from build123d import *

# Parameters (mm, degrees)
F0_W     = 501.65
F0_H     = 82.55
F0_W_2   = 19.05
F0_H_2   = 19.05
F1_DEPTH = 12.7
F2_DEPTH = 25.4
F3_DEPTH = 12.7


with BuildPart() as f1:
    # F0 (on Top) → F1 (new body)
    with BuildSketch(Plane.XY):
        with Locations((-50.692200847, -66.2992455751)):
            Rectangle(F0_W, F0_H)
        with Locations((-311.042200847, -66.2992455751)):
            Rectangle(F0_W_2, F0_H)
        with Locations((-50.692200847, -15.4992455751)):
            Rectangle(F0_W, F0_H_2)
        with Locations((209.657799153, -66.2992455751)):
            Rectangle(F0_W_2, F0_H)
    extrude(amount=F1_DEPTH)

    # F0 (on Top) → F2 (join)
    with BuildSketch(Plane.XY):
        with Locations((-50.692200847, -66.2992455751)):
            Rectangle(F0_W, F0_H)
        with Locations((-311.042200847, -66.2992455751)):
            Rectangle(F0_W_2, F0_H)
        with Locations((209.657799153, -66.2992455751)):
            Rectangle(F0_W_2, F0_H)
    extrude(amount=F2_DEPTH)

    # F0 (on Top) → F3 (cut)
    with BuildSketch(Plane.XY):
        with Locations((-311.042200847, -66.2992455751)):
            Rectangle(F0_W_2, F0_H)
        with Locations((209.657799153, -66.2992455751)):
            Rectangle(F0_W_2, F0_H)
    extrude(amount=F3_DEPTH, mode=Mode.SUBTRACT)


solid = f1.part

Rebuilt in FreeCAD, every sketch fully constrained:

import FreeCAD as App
import Part
import Sketcher
from FreeCAD import Vector
Q = App.Units.Quantity

doc = App.newDocument("Part")
body = doc.addObject("PartDesign::Body", "Body")

sketch1 = body.newObject("Sketcher::SketchObject", "Sketch")
sketch1.AttachmentSupport = (doc.getObject("XY_Plane"), [""])
sketch1.MapMode = "FlatFace"
sketch1.addGeometry(Part.LineSegment(Vector(200, -25, 0), Vector(200, -6, 0)), False)
sketch1.addGeometry(Part.LineSegment(Vector(200, -6, 0), Vector(-302, -6, 0)), False)
sketch1.addGeometry(Part.LineSegment(Vector(-302, -6, 0), Vector(-302, -25, 0)), False)
sketch1.addGeometry(Part.LineSegment(Vector(-302, -25, 0), Vector(-321, -25, 0)), False)
sketch1.addGeometry(Part.LineSegment(Vector(-321, -25, 0), Vector(-321, -108, 0)), False)
sketch1.addGeometry(Part.LineSegment(Vector(-321, -108, 0), Vector(219, -108, 0)), False)
sketch1.addGeometry(Part.LineSegment(Vector(219, -108, 0), Vector(219, -25, 0)), False)
sketch1.addGeometry(Part.LineSegment(Vector(219, -25, 0), Vector(200, -25, 0)), False)
sketch1.addConstraint(Sketcher.Constraint("Coincident", 0, 2, 1, 1))
sketch1.addConstraint(Sketcher.Constraint("Coincident", 1, 2, 2, 1))
sketch1.addConstraint(Sketcher.Constraint("Coincident", 2, 2, 3, 1))
sketch1.addConstraint(Sketcher.Constraint("Coincident", 3, 2, 4, 1))
sketch1.addConstraint(Sketcher.Constraint("Coincident", 4, 2, 5, 1))
sketch1.addConstraint(Sketcher.Constraint("Coincident", 5, 2, 6, 1))
sketch1.addConstraint(Sketcher.Constraint("Coincident", 6, 2, 7, 1))
sketch1.addConstraint(Sketcher.Constraint("Coincident", 7, 2, 0, 1))
sketch1.addConstraint(Sketcher.Constraint("Vertical", 0))
sketch1.addConstraint(Sketcher.Constraint("Horizontal", 1))
sketch1.addConstraint(Sketcher.Constraint("Vertical", 2))
sketch1.addConstraint(Sketcher.Constraint("Horizontal", 3))
sketch1.addConstraint(Sketcher.Constraint("Vertical", 4))
sketch1.addConstraint(Sketcher.Constraint("Horizontal", 5))
sketch1.addConstraint(Sketcher.Constraint("Vertical", 6))
sketch1.addConstraint(Sketcher.Constraint("Horizontal", 7))
sketch1.addConstraint(Sketcher.Constraint("Horizontal", 3, 2, 6, 2))
sketch1.addConstraint(Sketcher.Constraint("Equal", 3, 7))
sketch1.addConstraint(Sketcher.Constraint("Equal", 7, 0))
sketch1.addConstraint(Sketcher.Constraint("DistanceY", 4, 2, 1, 2, Q("4 in")))
sketch1.addConstraint(Sketcher.Constraint("DistanceX", 1, 2, 1, 1, Q("19.75 in")))
sketch1.addConstraint(Sketcher.Constraint("DistanceX", 3, 2, 3, 1, Q("0.75 in")))
sketch1.addConstraint(Sketcher.Constraint("DistanceX", -1, 1, 0, 2, Q("200.132799 mm")))
sketch1.addConstraint(Sketcher.Constraint("DistanceY", 0, 2, -1, 1, Q("5.974246 mm")))
pad1 = body.newObject("PartDesign::Pad", "Pad")
pad1.Profile = sketch1
pad1.Length = Q("0.5 in")

sketch2 = body.newObject("Sketcher::SketchObject", "Sketch001")
sketch2.AttachmentSupport = (doc.getObject("XY_Plane"), [""])
sketch2.MapMode = "FlatFace"
sketch2.addGeometry(Part.LineSegment(Vector(-321, -25, 0), Vector(-321, -108, 0)), False)
sketch2.addGeometry(Part.LineSegment(Vector(-321, -108, 0), Vector(219, -108, 0)), False)
sketch2.addGeometry(Part.LineSegment(Vector(219, -108, 0), Vector(219, -25, 0)), False)
sketch2.addGeometry(Part.LineSegment(Vector(219, -25, 0), Vector(-321, -25, 0)), False)
sketch2.addConstraint(Sketcher.Constraint("Coincident", 0, 2, 1, 1))
sketch2.addConstraint(Sketcher.Constraint("Coincident", 1, 2, 2, 1))
sketch2.addConstraint(Sketcher.Constraint("Coincident", 2, 2, 3, 1))
sketch2.addConstraint(Sketcher.Constraint("Coincident", 3, 2, 0, 1))
sketch2.addConstraint(Sketcher.Constraint("Vertical", 0))
sketch2.addConstraint(Sketcher.Constraint("Horizontal", 1))
sketch2.addConstraint(Sketcher.Constraint("Vertical", 2))
sketch2.addConstraint(Sketcher.Constraint("Horizontal", 3))
sketch2.addConstraint(Sketcher.Constraint("DistanceX", 1, 1, 1, 2, Q("21.25 in")))
sketch2.addConstraint(Sketcher.Constraint("DistanceY", 0, 2, 0, 1, Q("3.25 in")))
sketch2.addConstraint(Sketcher.Constraint("DistanceX", 0, 2, -1, 1, Q("320.567201 mm")))
sketch2.addConstraint(Sketcher.Constraint("DistanceY", 0, 2, -1, 1, Q("107.574246 mm")))
pad2 = body.newObject("PartDesign::Pad", "Pad001")
pad2.Profile = sketch2
pad2.Length = Q("1 in")

sketch3 = body.newObject("Sketcher::SketchObject", "Sketch002")
sketch3.AttachmentSupport = (doc.getObject("XY_Plane"), [""])
sketch3.MapMode = "FlatFace"
sketch3.addGeometry(Part.LineSegment(Vector(-321, -25, 0), Vector(-321, -108, 0)), False)
sketch3.addGeometry(Part.LineSegment(Vector(-321, -108, 0), Vector(-302, -108, 0)), False)
sketch3.addGeometry(Part.LineSegment(Vector(-302, -108, 0), Vector(-302, -25, 0)), False)
sketch3.addGeometry(Part.LineSegment(Vector(-302, -25, 0), Vector(-321, -25, 0)), False)
sketch3.addGeometry(Part.LineSegment(Vector(200, -25, 0), Vector(200, -108, 0)), False)
sketch3.addGeometry(Part.LineSegment(Vector(200, -108, 0), Vector(219, -108, 0)), False)
sketch3.addGeometry(Part.LineSegment(Vector(219, -108, 0), Vector(219, -25, 0)), False)
sketch3.addGeometry(Part.LineSegment(Vector(219, -25, 0), Vector(200, -25, 0)), False)
sketch3.addConstraint(Sketcher.Constraint("Coincident", 0, 2, 1, 1))
sketch3.addConstraint(Sketcher.Constraint("Coincident", 1, 2, 2, 1))
sketch3.addConstraint(Sketcher.Constraint("Coincident", 2, 2, 3, 1))
sketch3.addConstraint(Sketcher.Constraint("Coincident", 3, 2, 0, 1))
sketch3.addConstraint(Sketcher.Constraint("Coincident", 4, 2, 5, 1))
sketch3.addConstraint(Sketcher.Constraint("Coincident", 5, 2, 6, 1))
sketch3.addConstraint(Sketcher.Constraint("Coincident", 6, 2, 7, 1))
sketch3.addConstraint(Sketcher.Constraint("Coincident", 7, 2, 4, 1))
sketch3.addConstraint(Sketcher.Constraint("Vertical", 0))
sketch3.addConstraint(Sketcher.Constraint("Horizontal", 1))
sketch3.addConstraint(Sketcher.Constraint("Vertical", 2))
sketch3.addConstraint(Sketcher.Constraint("Horizontal", 3))
sketch3.addConstraint(Sketcher.Constraint("Vertical", 4))
sketch3.addConstraint(Sketcher.Constraint("Horizontal", 5))
sketch3.addConstraint(Sketcher.Constraint("Vertical", 6))
sketch3.addConstraint(Sketcher.Constraint("Horizontal", 7))
sketch3.addConstraint(Sketcher.Constraint("Horizontal", 1, 2, 4, 2))
sketch3.addConstraint(Sketcher.Constraint("Horizontal", 3, 2, 6, 2))
sketch3.addConstraint(Sketcher.Constraint("Equal", 3, 5))
sketch3.addConstraint(Sketcher.Constraint("DistanceX", 1, 1, 1, 2, Q("0.75 in")))
sketch3.addConstraint(Sketcher.Constraint("DistanceY", 0, 2, 0, 1, Q("3.25 in")))
sketch3.addConstraint(Sketcher.Constraint("DistanceX", 0, 2, 4, 2, Q("20.5 in")))
sketch3.addConstraint(Sketcher.Constraint("DistanceX", 0, 2, -1, 1, Q("320.567201 mm")))
sketch3.addConstraint(Sketcher.Constraint("DistanceY", 0, 2, -1, 1, Q("107.574246 mm")))
pocket1 = body.newObject("PartDesign::Pocket", "Pocket")
pocket1.Profile = sketch3
pocket1.Length = Q("0.5 in")
pocket1.Reversed = True

doc.recompute()
